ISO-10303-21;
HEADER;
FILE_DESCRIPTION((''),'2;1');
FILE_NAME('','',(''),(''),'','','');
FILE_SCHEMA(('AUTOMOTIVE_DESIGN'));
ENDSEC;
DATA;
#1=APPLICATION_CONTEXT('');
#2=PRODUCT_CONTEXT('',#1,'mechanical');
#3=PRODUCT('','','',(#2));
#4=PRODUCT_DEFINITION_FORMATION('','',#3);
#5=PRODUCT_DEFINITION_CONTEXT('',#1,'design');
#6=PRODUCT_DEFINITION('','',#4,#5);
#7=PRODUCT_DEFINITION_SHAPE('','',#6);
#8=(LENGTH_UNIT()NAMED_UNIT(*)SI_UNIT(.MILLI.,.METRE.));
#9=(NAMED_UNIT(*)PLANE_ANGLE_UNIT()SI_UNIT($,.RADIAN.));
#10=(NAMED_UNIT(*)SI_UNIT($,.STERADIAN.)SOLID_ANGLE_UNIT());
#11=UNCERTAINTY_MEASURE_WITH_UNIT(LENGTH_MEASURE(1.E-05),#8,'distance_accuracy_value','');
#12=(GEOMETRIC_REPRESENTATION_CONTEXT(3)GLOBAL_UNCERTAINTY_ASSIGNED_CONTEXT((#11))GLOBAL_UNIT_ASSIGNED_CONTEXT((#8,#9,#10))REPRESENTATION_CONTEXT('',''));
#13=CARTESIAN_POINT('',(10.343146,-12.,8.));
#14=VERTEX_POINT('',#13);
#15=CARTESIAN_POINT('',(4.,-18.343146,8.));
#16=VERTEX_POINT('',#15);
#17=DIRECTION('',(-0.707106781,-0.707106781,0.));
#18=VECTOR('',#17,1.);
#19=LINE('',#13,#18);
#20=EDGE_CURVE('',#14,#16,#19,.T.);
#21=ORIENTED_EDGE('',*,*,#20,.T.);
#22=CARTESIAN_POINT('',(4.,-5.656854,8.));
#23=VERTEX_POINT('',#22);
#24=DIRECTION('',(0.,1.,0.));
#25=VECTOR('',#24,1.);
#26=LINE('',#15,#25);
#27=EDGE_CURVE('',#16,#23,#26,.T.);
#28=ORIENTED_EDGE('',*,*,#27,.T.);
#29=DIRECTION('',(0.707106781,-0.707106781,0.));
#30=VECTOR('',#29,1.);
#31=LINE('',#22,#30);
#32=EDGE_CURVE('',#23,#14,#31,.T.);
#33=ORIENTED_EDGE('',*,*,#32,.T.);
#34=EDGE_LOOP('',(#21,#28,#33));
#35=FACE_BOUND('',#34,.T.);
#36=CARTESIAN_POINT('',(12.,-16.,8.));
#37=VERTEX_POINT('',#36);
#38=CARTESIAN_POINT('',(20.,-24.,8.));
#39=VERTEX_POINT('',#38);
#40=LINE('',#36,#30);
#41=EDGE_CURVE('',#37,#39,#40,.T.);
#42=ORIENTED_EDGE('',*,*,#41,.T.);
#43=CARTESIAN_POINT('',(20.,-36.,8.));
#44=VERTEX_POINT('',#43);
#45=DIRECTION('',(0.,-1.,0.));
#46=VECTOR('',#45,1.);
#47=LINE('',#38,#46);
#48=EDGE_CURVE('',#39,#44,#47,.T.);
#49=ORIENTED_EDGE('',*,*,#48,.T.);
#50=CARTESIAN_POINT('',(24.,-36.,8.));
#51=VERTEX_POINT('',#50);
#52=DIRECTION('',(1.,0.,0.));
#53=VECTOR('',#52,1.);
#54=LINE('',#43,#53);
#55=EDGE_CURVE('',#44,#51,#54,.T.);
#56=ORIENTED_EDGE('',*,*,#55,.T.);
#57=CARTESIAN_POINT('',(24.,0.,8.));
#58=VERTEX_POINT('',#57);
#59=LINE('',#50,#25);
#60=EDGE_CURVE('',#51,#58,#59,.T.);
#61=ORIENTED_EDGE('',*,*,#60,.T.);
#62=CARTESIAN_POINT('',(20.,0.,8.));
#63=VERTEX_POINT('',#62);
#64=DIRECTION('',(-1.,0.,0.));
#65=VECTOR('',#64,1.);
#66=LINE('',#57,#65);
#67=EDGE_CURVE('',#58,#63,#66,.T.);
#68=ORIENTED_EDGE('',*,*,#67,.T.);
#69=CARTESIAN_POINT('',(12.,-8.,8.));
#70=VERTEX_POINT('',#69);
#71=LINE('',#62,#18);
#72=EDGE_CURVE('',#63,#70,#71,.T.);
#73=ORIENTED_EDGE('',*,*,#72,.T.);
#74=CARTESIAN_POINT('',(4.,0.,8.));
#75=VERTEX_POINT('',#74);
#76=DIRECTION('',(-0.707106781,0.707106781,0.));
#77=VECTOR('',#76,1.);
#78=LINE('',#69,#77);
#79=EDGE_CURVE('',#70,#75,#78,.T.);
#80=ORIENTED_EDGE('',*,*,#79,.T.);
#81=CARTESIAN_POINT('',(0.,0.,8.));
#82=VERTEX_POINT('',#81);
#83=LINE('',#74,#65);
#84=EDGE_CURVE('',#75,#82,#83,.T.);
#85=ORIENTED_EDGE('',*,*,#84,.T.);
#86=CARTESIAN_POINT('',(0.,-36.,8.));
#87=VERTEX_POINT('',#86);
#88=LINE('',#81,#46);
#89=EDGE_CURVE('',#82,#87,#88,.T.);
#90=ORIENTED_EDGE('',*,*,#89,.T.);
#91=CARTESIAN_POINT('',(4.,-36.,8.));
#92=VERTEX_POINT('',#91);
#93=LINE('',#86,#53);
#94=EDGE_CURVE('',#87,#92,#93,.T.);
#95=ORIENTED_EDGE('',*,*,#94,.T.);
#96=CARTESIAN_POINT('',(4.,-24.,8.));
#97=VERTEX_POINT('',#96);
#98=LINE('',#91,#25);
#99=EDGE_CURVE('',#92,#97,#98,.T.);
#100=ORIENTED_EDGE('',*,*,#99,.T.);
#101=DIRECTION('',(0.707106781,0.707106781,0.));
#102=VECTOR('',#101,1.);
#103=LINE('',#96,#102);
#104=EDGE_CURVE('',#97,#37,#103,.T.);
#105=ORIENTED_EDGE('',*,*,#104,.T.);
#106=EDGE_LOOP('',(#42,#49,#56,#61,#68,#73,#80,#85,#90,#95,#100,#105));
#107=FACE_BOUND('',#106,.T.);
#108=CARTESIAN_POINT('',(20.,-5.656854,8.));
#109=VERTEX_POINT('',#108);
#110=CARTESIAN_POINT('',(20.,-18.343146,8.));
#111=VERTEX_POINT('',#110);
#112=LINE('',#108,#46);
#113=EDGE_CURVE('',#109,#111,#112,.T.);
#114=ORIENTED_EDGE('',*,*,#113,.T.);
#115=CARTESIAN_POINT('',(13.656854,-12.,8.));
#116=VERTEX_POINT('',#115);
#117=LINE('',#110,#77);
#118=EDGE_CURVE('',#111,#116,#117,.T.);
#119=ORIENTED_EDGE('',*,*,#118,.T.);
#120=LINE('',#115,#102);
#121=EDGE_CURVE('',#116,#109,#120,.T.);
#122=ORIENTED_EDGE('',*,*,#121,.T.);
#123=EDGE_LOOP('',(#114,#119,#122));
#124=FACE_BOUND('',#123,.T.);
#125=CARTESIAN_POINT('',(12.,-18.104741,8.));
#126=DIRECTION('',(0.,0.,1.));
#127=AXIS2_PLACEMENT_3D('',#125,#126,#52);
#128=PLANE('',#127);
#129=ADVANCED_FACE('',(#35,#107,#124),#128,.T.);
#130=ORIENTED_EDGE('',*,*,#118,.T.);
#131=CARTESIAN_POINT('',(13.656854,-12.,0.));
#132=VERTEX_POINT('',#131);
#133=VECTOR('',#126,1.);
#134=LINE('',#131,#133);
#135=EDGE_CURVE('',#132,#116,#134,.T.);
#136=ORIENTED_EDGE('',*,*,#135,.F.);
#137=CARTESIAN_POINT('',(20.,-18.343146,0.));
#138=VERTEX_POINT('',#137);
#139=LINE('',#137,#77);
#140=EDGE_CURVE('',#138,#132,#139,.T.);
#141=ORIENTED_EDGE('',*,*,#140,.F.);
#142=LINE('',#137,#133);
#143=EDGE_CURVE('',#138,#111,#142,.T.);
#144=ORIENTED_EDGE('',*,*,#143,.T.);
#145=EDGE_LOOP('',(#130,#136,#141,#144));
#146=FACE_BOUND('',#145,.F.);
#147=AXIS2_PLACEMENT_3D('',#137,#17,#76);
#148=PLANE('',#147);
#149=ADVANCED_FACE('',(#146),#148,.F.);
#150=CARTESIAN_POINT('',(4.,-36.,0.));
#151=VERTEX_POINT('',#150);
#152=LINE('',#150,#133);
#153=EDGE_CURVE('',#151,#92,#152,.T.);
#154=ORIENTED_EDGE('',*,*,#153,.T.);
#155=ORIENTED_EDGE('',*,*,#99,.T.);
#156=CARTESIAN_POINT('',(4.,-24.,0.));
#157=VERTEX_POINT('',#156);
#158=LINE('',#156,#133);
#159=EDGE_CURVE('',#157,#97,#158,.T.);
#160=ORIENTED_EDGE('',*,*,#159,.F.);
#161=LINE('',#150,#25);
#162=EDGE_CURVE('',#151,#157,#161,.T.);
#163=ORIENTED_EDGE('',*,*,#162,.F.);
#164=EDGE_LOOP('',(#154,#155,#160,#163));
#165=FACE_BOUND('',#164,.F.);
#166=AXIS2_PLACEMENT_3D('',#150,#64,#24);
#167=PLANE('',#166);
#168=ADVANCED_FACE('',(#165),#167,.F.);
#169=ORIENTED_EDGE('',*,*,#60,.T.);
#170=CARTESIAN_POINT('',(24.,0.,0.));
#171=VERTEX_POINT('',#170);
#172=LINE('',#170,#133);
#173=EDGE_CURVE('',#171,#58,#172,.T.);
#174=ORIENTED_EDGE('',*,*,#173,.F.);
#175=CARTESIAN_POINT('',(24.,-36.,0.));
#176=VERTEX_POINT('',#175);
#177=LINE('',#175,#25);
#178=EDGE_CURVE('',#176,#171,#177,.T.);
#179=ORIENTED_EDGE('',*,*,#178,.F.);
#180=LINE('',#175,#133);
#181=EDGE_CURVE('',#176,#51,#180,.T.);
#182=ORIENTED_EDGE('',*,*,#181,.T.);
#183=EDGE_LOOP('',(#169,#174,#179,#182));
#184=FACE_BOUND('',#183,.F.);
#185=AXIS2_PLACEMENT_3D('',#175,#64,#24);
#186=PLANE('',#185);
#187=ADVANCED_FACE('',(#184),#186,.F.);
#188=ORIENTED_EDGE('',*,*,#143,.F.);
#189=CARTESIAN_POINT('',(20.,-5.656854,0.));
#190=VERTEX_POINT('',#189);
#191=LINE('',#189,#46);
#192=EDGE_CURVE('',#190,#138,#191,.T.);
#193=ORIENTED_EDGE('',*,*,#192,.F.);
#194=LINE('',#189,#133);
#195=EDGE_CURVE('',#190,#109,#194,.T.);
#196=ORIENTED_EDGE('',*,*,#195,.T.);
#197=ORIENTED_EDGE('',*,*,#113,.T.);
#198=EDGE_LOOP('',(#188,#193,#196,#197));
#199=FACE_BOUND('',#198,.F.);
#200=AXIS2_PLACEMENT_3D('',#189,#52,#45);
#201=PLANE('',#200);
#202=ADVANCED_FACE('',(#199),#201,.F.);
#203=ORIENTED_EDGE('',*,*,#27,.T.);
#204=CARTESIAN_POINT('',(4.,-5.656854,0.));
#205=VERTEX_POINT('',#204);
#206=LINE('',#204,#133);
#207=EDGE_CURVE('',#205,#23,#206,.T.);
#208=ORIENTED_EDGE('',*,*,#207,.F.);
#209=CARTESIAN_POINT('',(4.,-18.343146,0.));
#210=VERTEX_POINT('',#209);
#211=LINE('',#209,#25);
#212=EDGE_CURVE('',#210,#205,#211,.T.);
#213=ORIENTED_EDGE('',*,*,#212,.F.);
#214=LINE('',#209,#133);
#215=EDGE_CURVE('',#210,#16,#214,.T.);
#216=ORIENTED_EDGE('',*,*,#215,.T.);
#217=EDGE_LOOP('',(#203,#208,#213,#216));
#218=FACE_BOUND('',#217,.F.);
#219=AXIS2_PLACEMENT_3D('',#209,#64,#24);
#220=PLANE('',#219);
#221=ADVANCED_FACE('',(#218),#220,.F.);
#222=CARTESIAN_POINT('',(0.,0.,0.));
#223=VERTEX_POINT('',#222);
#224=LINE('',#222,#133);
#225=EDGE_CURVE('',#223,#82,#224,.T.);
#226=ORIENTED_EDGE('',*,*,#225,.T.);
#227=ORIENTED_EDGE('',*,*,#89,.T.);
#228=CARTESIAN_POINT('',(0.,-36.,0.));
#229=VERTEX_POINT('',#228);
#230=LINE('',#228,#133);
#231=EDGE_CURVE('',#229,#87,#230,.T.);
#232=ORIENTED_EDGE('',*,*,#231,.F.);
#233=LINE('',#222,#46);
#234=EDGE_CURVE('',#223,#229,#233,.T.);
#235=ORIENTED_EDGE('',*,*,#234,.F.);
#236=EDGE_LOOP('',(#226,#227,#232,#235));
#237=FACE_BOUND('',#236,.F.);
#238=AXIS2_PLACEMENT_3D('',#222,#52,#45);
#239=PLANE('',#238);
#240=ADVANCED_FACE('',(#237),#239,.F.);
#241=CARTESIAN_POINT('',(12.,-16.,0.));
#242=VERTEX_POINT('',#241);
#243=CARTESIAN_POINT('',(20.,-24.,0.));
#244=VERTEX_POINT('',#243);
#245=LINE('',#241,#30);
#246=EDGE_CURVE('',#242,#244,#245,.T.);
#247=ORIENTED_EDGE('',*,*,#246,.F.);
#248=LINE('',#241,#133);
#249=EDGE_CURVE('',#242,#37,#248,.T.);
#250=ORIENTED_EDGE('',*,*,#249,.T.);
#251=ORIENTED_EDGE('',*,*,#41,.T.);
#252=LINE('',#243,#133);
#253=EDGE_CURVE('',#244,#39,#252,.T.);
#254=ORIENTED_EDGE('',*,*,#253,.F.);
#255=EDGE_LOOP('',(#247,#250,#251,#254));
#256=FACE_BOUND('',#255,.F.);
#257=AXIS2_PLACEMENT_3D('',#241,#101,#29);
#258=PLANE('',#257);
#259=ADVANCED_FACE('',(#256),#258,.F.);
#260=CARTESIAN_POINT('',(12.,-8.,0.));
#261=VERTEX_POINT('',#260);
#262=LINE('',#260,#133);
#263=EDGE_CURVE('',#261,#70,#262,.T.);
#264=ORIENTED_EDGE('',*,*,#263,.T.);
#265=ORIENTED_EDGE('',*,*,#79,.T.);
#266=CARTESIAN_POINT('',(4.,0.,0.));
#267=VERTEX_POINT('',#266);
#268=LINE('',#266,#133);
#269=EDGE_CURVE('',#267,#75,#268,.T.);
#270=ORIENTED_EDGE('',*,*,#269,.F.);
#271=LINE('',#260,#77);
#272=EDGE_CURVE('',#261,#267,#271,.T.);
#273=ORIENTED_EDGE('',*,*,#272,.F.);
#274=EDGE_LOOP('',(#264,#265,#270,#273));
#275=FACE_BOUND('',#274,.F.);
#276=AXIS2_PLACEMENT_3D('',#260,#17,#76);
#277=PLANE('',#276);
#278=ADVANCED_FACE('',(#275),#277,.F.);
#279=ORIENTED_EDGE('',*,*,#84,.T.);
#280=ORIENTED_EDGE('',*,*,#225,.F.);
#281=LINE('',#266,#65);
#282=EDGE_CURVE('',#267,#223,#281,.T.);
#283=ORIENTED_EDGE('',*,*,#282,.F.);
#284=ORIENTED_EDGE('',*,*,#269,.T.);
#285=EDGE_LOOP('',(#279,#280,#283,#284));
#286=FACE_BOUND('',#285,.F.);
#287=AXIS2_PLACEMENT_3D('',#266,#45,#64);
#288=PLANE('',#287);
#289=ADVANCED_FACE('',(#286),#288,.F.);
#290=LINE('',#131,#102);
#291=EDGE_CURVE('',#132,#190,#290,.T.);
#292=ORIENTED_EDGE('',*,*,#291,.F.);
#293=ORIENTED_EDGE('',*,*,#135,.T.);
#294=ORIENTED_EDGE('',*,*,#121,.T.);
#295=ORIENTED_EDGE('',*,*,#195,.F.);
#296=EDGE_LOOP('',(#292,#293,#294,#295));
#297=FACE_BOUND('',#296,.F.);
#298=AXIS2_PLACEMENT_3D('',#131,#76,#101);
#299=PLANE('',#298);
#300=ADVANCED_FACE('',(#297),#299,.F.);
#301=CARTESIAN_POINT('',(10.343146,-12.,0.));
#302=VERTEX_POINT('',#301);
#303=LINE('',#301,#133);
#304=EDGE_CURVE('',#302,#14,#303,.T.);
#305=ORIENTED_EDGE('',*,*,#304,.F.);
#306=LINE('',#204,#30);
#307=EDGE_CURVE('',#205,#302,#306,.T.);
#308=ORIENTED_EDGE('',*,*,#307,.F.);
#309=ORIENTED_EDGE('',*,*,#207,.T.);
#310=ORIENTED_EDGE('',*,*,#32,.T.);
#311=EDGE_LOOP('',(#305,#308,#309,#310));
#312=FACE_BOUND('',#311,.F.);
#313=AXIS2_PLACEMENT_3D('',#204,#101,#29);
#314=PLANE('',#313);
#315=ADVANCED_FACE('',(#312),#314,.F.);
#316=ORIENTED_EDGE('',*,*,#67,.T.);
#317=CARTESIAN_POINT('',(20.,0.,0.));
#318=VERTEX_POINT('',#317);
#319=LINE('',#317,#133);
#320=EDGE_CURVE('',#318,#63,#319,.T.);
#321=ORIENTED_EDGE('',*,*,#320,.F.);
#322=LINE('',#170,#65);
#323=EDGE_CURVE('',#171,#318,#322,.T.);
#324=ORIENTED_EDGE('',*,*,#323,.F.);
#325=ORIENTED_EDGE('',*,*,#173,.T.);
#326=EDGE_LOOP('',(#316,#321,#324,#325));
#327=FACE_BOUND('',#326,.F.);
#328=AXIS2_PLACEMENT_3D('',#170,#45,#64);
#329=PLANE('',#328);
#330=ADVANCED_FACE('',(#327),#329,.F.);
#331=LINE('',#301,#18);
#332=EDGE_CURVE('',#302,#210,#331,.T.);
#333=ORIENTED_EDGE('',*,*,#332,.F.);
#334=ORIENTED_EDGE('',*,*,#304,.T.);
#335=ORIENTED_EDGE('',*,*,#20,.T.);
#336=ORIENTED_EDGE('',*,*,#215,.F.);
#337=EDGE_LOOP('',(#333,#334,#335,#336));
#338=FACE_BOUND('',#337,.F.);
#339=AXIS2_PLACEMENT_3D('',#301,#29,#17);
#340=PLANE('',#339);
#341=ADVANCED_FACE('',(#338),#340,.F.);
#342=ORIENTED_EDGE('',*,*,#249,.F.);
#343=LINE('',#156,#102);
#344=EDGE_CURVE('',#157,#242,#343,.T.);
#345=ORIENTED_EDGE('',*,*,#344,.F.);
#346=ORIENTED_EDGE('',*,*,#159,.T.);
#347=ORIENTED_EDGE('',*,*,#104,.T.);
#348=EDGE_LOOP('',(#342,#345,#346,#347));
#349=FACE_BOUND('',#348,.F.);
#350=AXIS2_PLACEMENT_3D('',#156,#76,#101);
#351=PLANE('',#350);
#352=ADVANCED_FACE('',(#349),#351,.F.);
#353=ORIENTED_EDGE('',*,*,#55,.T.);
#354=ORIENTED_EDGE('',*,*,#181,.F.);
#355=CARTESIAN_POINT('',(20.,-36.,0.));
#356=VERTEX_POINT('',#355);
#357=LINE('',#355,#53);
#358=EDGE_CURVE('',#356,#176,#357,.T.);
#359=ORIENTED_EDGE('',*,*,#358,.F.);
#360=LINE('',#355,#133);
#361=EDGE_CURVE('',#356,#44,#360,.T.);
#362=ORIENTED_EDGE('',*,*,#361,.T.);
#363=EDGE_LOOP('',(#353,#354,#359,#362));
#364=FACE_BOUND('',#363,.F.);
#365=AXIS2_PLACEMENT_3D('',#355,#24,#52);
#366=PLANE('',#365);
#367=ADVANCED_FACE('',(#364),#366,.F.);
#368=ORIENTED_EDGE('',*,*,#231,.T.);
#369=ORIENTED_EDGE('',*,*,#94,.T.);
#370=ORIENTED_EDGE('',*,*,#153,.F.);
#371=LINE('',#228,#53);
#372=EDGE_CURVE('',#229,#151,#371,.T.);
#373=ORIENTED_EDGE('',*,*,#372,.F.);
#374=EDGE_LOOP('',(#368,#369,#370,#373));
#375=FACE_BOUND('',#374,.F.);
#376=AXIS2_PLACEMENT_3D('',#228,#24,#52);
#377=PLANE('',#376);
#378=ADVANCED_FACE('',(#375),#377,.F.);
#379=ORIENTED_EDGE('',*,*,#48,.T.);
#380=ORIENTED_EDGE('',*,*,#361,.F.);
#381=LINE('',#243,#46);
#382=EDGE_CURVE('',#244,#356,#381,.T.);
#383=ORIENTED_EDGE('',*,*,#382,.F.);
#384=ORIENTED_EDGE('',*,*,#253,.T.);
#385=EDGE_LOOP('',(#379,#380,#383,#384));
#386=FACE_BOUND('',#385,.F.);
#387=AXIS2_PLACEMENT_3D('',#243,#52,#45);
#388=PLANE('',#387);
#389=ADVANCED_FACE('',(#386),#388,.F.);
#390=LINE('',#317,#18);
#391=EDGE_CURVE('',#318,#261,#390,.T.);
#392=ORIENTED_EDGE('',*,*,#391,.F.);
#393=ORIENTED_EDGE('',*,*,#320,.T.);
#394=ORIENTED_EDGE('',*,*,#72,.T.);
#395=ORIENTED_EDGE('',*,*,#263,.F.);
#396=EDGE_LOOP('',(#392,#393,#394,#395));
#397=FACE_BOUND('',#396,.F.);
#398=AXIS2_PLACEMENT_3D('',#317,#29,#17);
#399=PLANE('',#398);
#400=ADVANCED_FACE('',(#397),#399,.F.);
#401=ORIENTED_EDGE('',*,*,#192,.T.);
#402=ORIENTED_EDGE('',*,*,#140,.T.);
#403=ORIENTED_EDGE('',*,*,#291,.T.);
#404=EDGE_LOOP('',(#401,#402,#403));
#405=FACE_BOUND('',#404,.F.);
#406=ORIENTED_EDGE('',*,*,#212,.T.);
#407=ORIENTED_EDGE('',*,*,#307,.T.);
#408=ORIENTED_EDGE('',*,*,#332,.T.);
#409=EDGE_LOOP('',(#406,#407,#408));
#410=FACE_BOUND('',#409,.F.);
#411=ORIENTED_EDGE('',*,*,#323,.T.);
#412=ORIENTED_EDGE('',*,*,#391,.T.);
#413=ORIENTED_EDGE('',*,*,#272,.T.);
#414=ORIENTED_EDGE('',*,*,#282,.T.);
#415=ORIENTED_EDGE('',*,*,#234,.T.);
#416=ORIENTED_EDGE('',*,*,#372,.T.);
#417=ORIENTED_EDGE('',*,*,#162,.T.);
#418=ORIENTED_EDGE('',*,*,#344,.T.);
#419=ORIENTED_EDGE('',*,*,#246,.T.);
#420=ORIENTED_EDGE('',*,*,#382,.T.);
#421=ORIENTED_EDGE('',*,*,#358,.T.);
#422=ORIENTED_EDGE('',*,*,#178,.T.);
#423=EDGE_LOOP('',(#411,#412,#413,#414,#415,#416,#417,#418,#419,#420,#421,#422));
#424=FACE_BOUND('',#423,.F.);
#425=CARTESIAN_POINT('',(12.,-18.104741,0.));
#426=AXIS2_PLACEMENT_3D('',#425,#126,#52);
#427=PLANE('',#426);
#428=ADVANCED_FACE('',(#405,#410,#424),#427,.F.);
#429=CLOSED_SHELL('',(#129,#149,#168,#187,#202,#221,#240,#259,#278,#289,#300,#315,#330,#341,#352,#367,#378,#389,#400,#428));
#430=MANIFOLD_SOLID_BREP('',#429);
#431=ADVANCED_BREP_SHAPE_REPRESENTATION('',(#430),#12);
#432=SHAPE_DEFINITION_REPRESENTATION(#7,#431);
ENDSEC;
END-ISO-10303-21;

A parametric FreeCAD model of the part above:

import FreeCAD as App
import Part
import Sketcher
Q = App.Units.Quantity

doc = App.newDocument("Part")
body = doc.addObject("PartDesign::Body", "Body")

# Sketch on XY plane
sketch1 = body.newObject("Sketcher::SketchObject", "Sketch")
sketch1.AttachmentSupport = (doc.getObject("XY_Plane"), [""])
sketch1.MapMode = "FlatFace"
sketch1.addGeometry([
    Part.LineSegment(App.Vector(4, -36, 0), App.Vector(4, -24, 0)),  # 0
    Part.LineSegment(App.Vector(4, -24, 0), App.Vector(12, -16, 0)),  # 1
    Part.LineSegment(App.Vector(12, -16, 0), App.Vector(20, -24, 0)),  # 2
    Part.LineSegment(App.Vector(20, -24, 0), App.Vector(20, -36, 0)),  # 3
    Part.LineSegment(App.Vector(20, -36, 0), App.Vector(24, -36, 0)),  # 4
    Part.LineSegment(App.Vector(24, -36, 0), App.Vector(24, 0, 0)),  # 5
    Part.LineSegment(App.Vector(24, 0, 0), App.Vector(20, 0, 0)),  # 6
    Part.LineSegment(App.Vector(20, 0, 0), App.Vector(12, -8, 0)),  # 7
    Part.LineSegment(App.Vector(12, -8, 0), App.Vector(4, 0, 0)),  # 8
    Part.LineSegment(App.Vector(4, 0, 0), App.Vector(0, 0, 0)),  # 9
    Part.LineSegment(App.Vector(0, 0, 0), App.Vector(0, -36, 0)),  # 10
    Part.LineSegment(App.Vector(0, -36, 0), App.Vector(4, -36, 0)),  # 11
    Part.LineSegment(App.Vector(4, -5.7, 0), App.Vector(10.3, -12, 0)),  # 12
    Part.LineSegment(App.Vector(10.3, -12, 0), App.Vector(4, -18.3, 0)),  # 13
    Part.LineSegment(App.Vector(4, -18.3, 0), App.Vector(4, -5.7, 0)),  # 14
    Part.LineSegment(App.Vector(20, -5.7, 0), App.Vector(20, -18.3, 0)),  # 15
    Part.LineSegment(App.Vector(20, -18.3, 0), App.Vector(13.7, -12, 0)),  # 16
    Part.LineSegment(App.Vector(13.7, -12, 0), App.Vector(20, -5.7, 0)),  # 17
], False)
sketch1.addConstraint([
    Sketcher.Constraint("Coincident", 0, 2, 1, 1),
    Sketcher.Constraint("Coincident", 1, 2, 2, 1),
    Sketcher.Constraint("Coincident", 2, 2, 3, 1),
    Sketcher.Constraint("Coincident", 3, 2, 4, 1),
    Sketcher.Constraint("Coincident", 4, 2, 5, 1),
    Sketcher.Constraint("Coincident", 5, 2, 6, 1),
    Sketcher.Constraint("Coincident", 6, 2, 7, 1),
    Sketcher.Constraint("Coincident", 7, 2, 8, 1),
    Sketcher.Constraint("Coincident", 8, 2, 9, 1),
    Sketcher.Constraint("Coincident", 9, 2, 10, 1),
    Sketcher.Constraint("Coincident", 10, 2, 11, 1),
    Sketcher.Constraint("Coincident", 11, 2, 0, 1),
    Sketcher.Constraint("Coincident", 12, 2, 13, 1),
    Sketcher.Constraint("Coincident", 13, 2, 14, 1),
    Sketcher.Constraint("Coincident", 14, 2, 12, 1),
    Sketcher.Constraint("Coincident", 15, 2, 16, 1),
    Sketcher.Constraint("Coincident", 16, 2, 17, 1),
    Sketcher.Constraint("Coincident", 17, 2, 15, 1),
    Sketcher.Constraint("Vertical", 0),
    Sketcher.Constraint("Vertical", 3),
    Sketcher.Constraint("Horizontal", 4),
    Sketcher.Constraint("Vertical", 5),
    Sketcher.Constraint("Horizontal", 6),
    Sketcher.Constraint("Horizontal", 9),
    Sketcher.Constraint("Vertical", 10),
    Sketcher.Constraint("Horizontal", 11),
    Sketcher.Constraint("Vertical", 14),
    Sketcher.Constraint("Vertical", 15),
    Sketcher.Constraint("Coincident", 9, 2, -1, 1),
    Sketcher.Constraint("PointOnObject", 5, 2, -1),
    Sketcher.Constraint("Perpendicular", 1, 2),
    Sketcher.Constraint("Perpendicular", 2, 7),
    Sketcher.Constraint("Perpendicular", 7, 8),
    Sketcher.Constraint("Parallel", 8, 12),
    Sketcher.Constraint("Perpendicular", 12, 13),
    Sketcher.Constraint("Perpendicular", 13, 16),
    Sketcher.Constraint("Perpendicular", 16, 17),
    Sketcher.Constraint("Horizontal", 0, 2, 2, 2),
    Sketcher.Constraint("Horizontal", 4, 2, 10, 2),
    Sketcher.Constraint("Horizontal", 13, 2, 15, 2),
    Sketcher.Constraint("Horizontal", 12, 2, 16, 2),
    Sketcher.Constraint("Horizontal", 14, 2, 17, 2),
    Sketcher.Constraint("Vertical", 3, 2, 6, 2),
    Sketcher.Constraint("Vertical", 1, 2, 7, 2),
    Sketcher.Constraint("Vertical", 11, 2, 13, 2),
    Sketcher.Constraint("Vertical", 6, 2, 15, 2),
    Sketcher.Constraint("Equal", 6, 9),
    Sketcher.Constraint("DistanceX", 4, 1, 4, 2, Q("4 mm")),
    Sketcher.Constraint("DistanceY", 0, 1, 0, 2, Q("12 mm")),
    Sketcher.Constraint("DistanceY", 5, 1, 5, 2, Q("36 mm")),
    Sketcher.Constraint("DistanceX", -1, 1, 1, 2, Q("12 mm")),
    Sketcher.Constraint("DistanceY", 12, 2, -1, 1, Q("12 mm")),
    Sketcher.Constraint("DistanceY", 14, 1, 14, 2, Q("12.686292 mm")),
])
pad1 = body.newObject("PartDesign::Pad", "Pad")
pad1.Profile = sketch1
pad1.Length = 8

doc.recompute()
